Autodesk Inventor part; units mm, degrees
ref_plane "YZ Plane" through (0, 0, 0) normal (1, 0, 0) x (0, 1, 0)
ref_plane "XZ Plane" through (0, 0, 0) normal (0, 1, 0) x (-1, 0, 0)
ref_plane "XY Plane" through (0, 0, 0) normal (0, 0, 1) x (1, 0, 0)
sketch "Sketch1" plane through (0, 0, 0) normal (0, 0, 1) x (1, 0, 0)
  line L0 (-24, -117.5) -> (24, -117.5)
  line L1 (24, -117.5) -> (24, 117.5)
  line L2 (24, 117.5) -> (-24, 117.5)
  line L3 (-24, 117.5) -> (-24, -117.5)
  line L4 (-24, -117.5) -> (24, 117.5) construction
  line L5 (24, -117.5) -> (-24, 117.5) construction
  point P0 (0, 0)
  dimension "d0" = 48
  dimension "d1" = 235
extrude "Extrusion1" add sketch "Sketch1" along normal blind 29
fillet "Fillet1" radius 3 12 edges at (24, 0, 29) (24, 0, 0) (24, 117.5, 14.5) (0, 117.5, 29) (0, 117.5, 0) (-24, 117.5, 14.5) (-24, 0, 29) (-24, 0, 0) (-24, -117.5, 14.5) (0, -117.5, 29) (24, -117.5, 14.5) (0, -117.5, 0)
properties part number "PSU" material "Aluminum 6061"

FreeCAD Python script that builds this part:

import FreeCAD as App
import Part
import Sketcher
from FreeCAD import Vector
Q = App.Units.Quantity


def add_polygon(sketch, points):
    """Adds a closed chain of lines whose ends are joined by coincident constraints."""
    first, n = sketch.GeometryCount, len(points)
    for a, b in zip(points, points[1:] + points[:1]):
        sketch.addGeometry(Part.LineSegment(App.Vector(*a, 0), App.Vector(*b, 0)), False)
    for i in range(n):
        sketch.addConstraint(Sketcher.Constraint("Coincident", first + i, 2, first + (i + 1) % n, 1))

doc = App.newDocument("Part")
body = doc.addObject("PartDesign::Body", "Body")

sketch1 = body.newObject("Sketcher::SketchObject", "Sketch")
sketch1.AttachmentSupport = (doc.getObject("XY_Plane"), [""])
sketch1.MapMode = "FlatFace"
add_polygon(sketch1, [(-24, 118), (-24, -118), (24, -118), (24, 118)])
sketch1.addConstraint(Sketcher.Constraint("Vertical", 0))
sketch1.addConstraint(Sketcher.Constraint("Horizontal", 1))
sketch1.addConstraint(Sketcher.Constraint("Vertical", 2))
sketch1.addConstraint(Sketcher.Constraint("Horizontal", 3))
sketch1.addConstraint(Sketcher.Constraint("Symmetric", 0, 2, 2, 2, -1, 1))
sketch1.addConstraint(Sketcher.Constraint("DistanceX", 1, 1, 1, 2, Q("48 mm")))
sketch1.addConstraint(Sketcher.Constraint("DistanceY", 0, 2, 0, 1, Q("235 mm")))
pad1 = body.newObject("PartDesign::Pad", "Pad")
pad1.Profile = sketch1
pad1.Length = 29
doc.recompute()

fillet = body.newObject("PartDesign::Fillet", "Fillet")
fillet.Base = (pad1, ["Edge1"])
fillet.UseAllEdges = True
fillet.Radius = 3

doc.recompute()
